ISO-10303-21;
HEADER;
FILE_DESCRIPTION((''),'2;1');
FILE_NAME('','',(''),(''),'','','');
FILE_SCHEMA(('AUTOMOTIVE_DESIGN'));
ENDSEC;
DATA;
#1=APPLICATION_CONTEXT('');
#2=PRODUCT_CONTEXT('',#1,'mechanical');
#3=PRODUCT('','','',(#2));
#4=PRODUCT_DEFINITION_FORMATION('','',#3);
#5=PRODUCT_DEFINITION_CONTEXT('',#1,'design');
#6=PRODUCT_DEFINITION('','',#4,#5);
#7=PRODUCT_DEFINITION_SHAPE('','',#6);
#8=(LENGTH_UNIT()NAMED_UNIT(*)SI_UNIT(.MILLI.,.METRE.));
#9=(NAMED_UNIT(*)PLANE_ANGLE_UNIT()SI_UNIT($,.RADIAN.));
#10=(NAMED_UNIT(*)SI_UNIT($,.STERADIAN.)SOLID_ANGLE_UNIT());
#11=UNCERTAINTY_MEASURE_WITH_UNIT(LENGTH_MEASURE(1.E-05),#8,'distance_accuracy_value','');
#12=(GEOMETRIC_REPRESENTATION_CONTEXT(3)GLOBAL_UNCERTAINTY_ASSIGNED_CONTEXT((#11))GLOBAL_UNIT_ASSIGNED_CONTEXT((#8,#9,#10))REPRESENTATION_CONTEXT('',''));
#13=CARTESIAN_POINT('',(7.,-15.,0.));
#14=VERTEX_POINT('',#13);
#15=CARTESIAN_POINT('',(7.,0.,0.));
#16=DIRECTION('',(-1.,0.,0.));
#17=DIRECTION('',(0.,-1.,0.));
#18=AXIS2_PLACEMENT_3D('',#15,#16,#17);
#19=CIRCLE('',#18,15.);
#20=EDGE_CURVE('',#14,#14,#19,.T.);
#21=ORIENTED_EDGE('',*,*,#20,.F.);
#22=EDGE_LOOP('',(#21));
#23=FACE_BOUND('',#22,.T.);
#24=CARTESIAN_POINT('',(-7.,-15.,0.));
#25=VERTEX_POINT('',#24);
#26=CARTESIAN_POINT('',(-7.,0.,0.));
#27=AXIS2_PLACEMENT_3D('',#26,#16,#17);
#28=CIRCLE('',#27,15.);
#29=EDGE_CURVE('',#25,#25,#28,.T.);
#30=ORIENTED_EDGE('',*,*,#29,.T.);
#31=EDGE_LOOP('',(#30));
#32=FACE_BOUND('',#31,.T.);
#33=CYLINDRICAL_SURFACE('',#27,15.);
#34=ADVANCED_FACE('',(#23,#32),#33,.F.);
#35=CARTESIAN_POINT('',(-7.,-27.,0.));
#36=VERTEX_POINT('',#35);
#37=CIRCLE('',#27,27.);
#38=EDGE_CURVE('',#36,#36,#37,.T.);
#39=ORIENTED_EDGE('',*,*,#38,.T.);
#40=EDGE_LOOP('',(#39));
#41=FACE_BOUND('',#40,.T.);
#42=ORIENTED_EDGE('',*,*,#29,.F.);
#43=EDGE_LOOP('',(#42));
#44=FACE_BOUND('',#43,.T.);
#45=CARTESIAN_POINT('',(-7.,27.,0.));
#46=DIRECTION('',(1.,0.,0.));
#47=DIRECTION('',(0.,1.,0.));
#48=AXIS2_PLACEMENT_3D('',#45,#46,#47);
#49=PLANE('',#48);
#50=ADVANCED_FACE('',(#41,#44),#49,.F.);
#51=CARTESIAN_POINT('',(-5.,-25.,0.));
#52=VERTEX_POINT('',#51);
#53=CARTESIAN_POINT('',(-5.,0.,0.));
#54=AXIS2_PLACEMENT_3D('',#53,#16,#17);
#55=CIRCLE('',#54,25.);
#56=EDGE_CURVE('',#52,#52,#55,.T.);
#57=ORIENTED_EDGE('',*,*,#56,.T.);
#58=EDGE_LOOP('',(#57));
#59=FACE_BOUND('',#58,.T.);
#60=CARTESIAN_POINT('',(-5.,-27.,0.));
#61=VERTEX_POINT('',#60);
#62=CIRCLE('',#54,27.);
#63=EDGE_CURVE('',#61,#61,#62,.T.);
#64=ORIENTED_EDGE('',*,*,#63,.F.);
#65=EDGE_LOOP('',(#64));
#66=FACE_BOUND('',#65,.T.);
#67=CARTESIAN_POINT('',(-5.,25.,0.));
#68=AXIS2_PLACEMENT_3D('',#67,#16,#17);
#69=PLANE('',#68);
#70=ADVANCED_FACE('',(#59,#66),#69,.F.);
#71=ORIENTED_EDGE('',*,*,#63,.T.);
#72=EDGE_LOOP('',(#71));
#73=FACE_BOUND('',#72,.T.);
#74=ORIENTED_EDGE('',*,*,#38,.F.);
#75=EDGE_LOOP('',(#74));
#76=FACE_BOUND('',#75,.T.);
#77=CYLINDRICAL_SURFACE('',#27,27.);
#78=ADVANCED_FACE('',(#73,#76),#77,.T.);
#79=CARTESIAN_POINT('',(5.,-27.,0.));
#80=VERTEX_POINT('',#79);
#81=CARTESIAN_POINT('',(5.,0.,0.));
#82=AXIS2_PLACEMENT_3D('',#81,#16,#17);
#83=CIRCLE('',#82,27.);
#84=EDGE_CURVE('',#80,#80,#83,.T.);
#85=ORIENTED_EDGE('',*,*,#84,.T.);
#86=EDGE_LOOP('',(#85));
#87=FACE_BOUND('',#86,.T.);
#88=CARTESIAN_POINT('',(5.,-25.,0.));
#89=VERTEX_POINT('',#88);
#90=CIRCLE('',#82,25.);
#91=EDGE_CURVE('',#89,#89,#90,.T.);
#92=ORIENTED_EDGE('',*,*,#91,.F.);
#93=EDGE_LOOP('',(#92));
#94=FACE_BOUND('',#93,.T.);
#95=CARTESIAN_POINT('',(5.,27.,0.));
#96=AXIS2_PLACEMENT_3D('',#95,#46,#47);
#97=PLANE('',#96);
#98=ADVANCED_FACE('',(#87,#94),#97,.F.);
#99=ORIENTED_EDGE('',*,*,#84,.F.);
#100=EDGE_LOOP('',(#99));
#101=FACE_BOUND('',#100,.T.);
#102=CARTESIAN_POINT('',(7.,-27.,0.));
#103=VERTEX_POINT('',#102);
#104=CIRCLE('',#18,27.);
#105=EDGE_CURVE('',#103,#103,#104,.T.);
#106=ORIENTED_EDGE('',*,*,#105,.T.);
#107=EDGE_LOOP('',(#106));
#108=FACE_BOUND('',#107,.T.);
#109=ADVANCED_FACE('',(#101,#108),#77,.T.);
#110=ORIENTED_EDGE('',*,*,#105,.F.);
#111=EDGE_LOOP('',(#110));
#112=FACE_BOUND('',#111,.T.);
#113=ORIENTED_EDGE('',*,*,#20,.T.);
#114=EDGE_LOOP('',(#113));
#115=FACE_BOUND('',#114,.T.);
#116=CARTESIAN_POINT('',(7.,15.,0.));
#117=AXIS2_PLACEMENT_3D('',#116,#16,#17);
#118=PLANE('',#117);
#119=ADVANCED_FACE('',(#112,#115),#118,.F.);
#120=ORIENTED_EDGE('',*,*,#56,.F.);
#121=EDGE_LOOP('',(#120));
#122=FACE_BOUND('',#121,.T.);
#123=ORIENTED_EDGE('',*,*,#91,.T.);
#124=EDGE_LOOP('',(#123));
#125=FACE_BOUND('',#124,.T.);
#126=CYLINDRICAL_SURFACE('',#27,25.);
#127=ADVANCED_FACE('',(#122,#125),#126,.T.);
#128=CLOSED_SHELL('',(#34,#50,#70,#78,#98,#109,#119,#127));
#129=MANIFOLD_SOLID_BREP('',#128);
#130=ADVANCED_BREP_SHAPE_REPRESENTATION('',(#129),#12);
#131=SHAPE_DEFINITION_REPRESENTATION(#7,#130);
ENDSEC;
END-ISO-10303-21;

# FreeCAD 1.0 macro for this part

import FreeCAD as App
import Part
import Sketcher
from FreeCAD import Vector


def add_polygon(sketch, points):
    """Adds a closed chain of lines whose ends are joined by coincident constraints."""
    first, n = sketch.GeometryCount, len(points)
    for a, b in zip(points, points[1:] + points[:1]):
        sketch.addGeometry(Part.LineSegment(App.Vector(*a, 0), App.Vector(*b, 0)), False)
    for i in range(n):
        sketch.addConstraint(Sketcher.Constraint("Coincident", first + i, 2, first + (i + 1) % n, 1))

doc = App.newDocument("Part")
body = doc.addObject("PartDesign::Body", "Body")

sketch1 = body.newObject("Sketcher::SketchObject", "Sketch")
sketch1.AttachmentSupport = (doc.getObject("XY_Plane"), [""])
sketch1.MapMode = "FlatFace"
add_polygon(sketch1, [(7, 15), (7, 27), (5, 27), (5, 25), (-5, 25), (-5, 27), (-7, 27), (-7, 15)])
sketch1.addConstraint([
    Sketcher.Constraint("Vertical", 0),
    Sketcher.Constraint("Horizontal", 1),
    Sketcher.Constraint("Vertical", 2),
    Sketcher.Constraint("Horizontal", 3),
    Sketcher.Constraint("Vertical", 4),
    Sketcher.Constraint("Horizontal", 5),
    Sketcher.Constraint("Vertical", 6),
    Sketcher.Constraint("Horizontal", 7),
    Sketcher.Constraint("Symmetric", 1, 2, 4, 2, -2),
    Sketcher.Constraint("Equal", 1, 5),
    Sketcher.Constraint("Equal", 5, 2),
    Sketcher.Constraint("DistanceX", 1, 2, 1, 1, 2.0),
    Sketcher.Constraint("DistanceX", 3, 2, 3, 1, 10.0),
    Sketcher.Constraint("DistanceY", 0, 1, 0, 2, 12.0),
    Sketcher.Constraint("DistanceY", -1, 1, 0, 2, 27.0),
])
revolution = body.newObject("PartDesign::Revolution", "Revolution")
revolution.Profile = sketch1
revolution.ReferenceAxis = (sketch1, ["H_Axis"])
revolution.Angle = 360

doc.recompute()
